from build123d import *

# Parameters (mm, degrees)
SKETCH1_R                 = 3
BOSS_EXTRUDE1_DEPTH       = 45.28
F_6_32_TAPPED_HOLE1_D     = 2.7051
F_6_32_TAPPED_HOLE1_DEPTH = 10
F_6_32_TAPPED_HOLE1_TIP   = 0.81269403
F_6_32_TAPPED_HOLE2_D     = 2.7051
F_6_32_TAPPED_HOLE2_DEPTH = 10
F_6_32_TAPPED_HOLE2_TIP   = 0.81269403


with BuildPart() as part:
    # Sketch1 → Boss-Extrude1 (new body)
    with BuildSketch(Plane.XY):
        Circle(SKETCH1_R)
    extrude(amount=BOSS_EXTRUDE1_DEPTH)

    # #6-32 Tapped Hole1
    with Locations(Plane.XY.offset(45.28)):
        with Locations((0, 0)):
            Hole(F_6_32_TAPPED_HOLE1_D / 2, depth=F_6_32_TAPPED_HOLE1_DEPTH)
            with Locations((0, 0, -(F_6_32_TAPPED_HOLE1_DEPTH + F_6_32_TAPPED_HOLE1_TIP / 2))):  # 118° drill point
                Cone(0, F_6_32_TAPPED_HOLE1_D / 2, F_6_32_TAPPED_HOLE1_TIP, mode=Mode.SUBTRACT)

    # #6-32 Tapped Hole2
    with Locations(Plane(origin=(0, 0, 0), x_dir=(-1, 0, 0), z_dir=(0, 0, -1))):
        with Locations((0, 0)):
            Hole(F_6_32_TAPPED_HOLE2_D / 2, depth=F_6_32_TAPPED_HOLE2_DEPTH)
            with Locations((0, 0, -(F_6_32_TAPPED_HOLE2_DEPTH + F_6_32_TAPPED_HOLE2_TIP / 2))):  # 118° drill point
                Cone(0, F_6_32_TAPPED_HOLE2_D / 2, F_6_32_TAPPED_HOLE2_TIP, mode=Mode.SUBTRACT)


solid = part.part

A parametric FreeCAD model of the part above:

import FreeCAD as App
import Part
import Sketcher

V = App.Vector
Q = App.Units.Quantity

doc = App.newDocument("Part")
params = doc.addObject("Spreadsheet::Sheet", "Params")
for row, (alias, value) in enumerate([
    ("sketch1_diameter", "6 mm"),
    ("pad1_length", "45.28 mm"),
    ("hole_diameter", "2.7051 mm"),
    ("hole_depth", "10 mm"),
    ("hole2_diameter", "2.7051 mm"),
    ("hole2_depth", "10 mm"),
], start=1):
    params.set(f"A{row}", alias)
    params.set(f"B{row}", "=" + value)
    params.setAlias(f"B{row}", alias)

body = doc.addObject("PartDesign::Body", "Body")

# Sketch on XY plane
sketch1 = doc.addObject("Sketcher::SketchObject", "Sketch")
body.addObject(sketch1)
sketch1.AttachmentSupport = (doc.XY_Plane, [""])
sketch1.MapMode = "FlatFace"
sketch1.addGeometry(Part.Circle(V(0, 0, 0), V(0, 0, 1), 3), False)
sketch1.addConstraint([
    Sketcher.Constraint("Coincident", 0, 3, -1, 1),
    Sketcher.Constraint("Diameter", 0, Q("6 mm")),
])
sketch1.setExpression("Constraints[1]", "Params.sketch1_diameter")
pad1 = doc.addObject("PartDesign::Pad", "Pad")
body.addObject(pad1)
pad1.Profile = sketch1
pad1.setExpression("Length", "Params.pad1_length")

# Sketch on XY plane
sketch2 = doc.addObject("Sketcher::SketchObject", "Sketch001")
body.addObject(sketch2)
sketch2.AttachmentSupport = (doc.XY_Plane, [""])
sketch2.MapMode = "FlatFace"
sketch2.AttachmentOffset = App.Placement(V(0, 0, 45.28), App.Rotation())
sketch2.addGeometry(Part.Circle(V(0, 0, 0), V(0, 0, 1), 1.35255), False)
sketch2.addConstraint([
    Sketcher.Constraint("Coincident", 0, 3, -1, 1),
    Sketcher.Constraint("Diameter", 0, Q("2.7051 mm")),
])
doc.recompute()
hole = doc.addObject("PartDesign::Hole", "Hole")
body.addObject(hole)
hole.Profile = sketch2
hole.ThreadType = "None"
hole.setExpression("Diameter", "Params.hole_diameter")
hole.DepthType = "Dimension"
hole.setExpression("Depth", "Params.hole_depth")
hole.DrillPoint = "Angled"
hole.DrillPointAngle = 118

# Sketch on XY plane
sketch3 = doc.addObject("Sketcher::SketchObject", "Sketch002")
body.addObject(sketch3)
sketch3.AttachmentSupport = (doc.XY_Plane, [""])
sketch3.MapMode = "FlatFace"
sketch3.addGeometry(Part.Circle(V(0, 0, 0), V(0, 0, 1), 1.35255), False)
sketch3.addConstraint([
    Sketcher.Constraint("Coincident", 0, 3, -1, 1),
    Sketcher.Constraint("Diameter", 0, Q("2.7051 mm")),
])
doc.recompute()
hole2 = doc.addObject("PartDesign::Hole", "Hole001")
body.addObject(hole2)
hole2.Profile = sketch3
hole2.ThreadType = "None"
hole2.setExpression("Diameter", "Params.hole2_diameter")
hole2.DepthType = "Dimension"
hole2.setExpression("Depth", "Params.hole2_depth")
hole2.DrillPoint = "Angled"
hole2.DrillPointAngle = 118
hole2.Reversed = True

doc.recompute()
